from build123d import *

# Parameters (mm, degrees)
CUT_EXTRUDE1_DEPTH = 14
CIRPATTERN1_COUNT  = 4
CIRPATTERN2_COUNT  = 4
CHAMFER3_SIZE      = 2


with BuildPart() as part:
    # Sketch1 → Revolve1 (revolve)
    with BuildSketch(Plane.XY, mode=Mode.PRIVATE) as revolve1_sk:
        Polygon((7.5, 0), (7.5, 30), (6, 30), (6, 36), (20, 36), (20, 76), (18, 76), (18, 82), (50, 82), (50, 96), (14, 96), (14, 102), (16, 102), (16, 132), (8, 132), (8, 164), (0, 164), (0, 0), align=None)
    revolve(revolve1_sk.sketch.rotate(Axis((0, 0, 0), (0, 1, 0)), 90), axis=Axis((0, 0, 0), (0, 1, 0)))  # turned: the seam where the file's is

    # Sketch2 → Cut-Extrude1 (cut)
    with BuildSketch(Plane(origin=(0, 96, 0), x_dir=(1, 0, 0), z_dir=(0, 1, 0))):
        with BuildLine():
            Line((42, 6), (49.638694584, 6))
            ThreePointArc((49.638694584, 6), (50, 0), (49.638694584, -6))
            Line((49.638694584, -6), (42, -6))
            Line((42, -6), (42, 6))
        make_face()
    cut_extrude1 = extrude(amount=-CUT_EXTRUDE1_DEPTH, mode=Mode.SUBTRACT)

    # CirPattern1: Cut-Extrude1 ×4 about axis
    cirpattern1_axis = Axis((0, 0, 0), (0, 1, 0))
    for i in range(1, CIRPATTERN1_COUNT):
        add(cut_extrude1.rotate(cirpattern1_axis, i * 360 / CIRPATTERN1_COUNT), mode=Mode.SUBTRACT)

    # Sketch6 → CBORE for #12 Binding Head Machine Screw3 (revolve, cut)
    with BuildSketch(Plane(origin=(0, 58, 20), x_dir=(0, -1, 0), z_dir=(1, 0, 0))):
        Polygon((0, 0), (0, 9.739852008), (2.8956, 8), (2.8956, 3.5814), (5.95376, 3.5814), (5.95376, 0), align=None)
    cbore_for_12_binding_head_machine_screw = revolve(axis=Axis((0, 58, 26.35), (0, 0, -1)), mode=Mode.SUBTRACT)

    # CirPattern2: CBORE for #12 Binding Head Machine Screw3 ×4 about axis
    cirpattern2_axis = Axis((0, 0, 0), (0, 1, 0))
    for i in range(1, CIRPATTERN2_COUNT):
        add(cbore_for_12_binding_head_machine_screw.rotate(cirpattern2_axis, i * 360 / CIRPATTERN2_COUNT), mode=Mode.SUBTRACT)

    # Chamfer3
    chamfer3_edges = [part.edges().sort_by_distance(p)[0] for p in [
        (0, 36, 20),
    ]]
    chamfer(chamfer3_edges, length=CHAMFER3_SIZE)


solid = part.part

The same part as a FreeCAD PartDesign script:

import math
import FreeCAD as App
import Part
import Sketcher
from FreeCAD import Vector
Q = App.Units.Quantity


def edges_at(feature, points):
    """Names of the edges that pass closest to the given points."""
    edges = feature.Shape.Edges
    near = lambda p: min(range(len(edges)), key=lambda i: edges[i].distToShape(Part.Vertex(*p))[0])
    return sorted({f"Edge{near(p) + 1}" for p in points})

doc = App.newDocument("Part")
body = doc.addObject("PartDesign::Body", "Body")

# Sketch on XY plane
sketch1 = body.newObject("Sketcher::SketchObject", "Sketch")
sketch1.AttachmentSupport = (doc.getObject("XY_Plane"), [""])
sketch1.MapMode = "FlatFace"
sketch1.addGeometry(Part.LineSegment(Vector(7.5, 0, 0), Vector(7.5, 30, 0)), False)
sketch1.addGeometry(Part.LineSegment(Vector(7.5, 30, 0), Vector(6, 30, 0)), False)
sketch1.addGeometry(Part.LineSegment(Vector(6, 30, 0), Vector(6, 36, 0)), False)
sketch1.addGeometry(Part.LineSegment(Vector(6, 36, 0), Vector(20, 36, 0)), False)
sketch1.addGeometry(Part.LineSegment(Vector(20, 36, 0), Vector(20, 76, 0)), False)
sketch1.addGeometry(Part.LineSegment(Vector(20, 76, 0), Vector(18, 76, 0)), False)
sketch1.addGeometry(Part.LineSegment(Vector(18, 76, 0), Vector(18, 82, 0)), False)
sketch1.addGeometry(Part.LineSegment(Vector(18, 82, 0), Vector(50, 82, 0)), False)
sketch1.addGeometry(Part.LineSegment(Vector(50, 82, 0), Vector(50, 96, 0)), False)
sketch1.addGeometry(Part.LineSegment(Vector(50, 96, 0), Vector(14, 96, 0)), False)
sketch1.addGeometry(Part.LineSegment(Vector(14, 96, 0), Vector(14, 102, 0)), False)
sketch1.addGeometry(Part.LineSegment(Vector(14, 102, 0), Vector(16, 102, 0)), False)
sketch1.addGeometry(Part.LineSegment(Vector(16, 102, 0), Vector(16, 132, 0)), False)
sketch1.addGeometry(Part.LineSegment(Vector(16, 132, 0), Vector(8, 132, 0)), False)
sketch1.addGeometry(Part.LineSegment(Vector(8, 132, 0), Vector(8, 164, 0)), False)
sketch1.addGeometry(Part.LineSegment(Vector(8, 164, 0), Vector(0, 164, 0)), False)
sketch1.addGeometry(Part.LineSegment(Vector(0, 164, 0), Vector(0, 0, 0)), False)
sketch1.addGeometry(Part.LineSegment(Vector(0, 0, 0), Vector(7.5, 0, 0)), False)
sketch1.addConstraint(Sketcher.Constraint("Coincident", 0, 2, 1, 1))
sketch1.addConstraint(Sketcher.Constraint("Coincident", 1, 2, 2, 1))
sketch1.addConstraint(Sketcher.Constraint("Coincident", 2, 2, 3, 1))
sketch1.addConstraint(Sketcher.Constraint("Coincident", 3, 2, 4, 1))
sketch1.addConstraint(Sketcher.Constraint("Coincident", 4, 2, 5, 1))
sketch1.addConstraint(Sketcher.Constraint("Coincident", 5, 2, 6, 1))
sketch1.addConstraint(Sketcher.Constraint("Coincident", 6, 2, 7, 1))
sketch1.addConstraint(Sketcher.Constraint("Coincident", 7, 2, 8, 1))
sketch1.addConstraint(Sketcher.Constraint("Coincident", 8, 2, 9, 1))
sketch1.addConstraint(Sketcher.Constraint("Coincident", 9, 2, 10, 1))
sketch1.addConstraint(Sketcher.Constraint("Coincident", 10, 2, 11, 1))
sketch1.addConstraint(Sketcher.Constraint("Coincident", 11, 2, 12, 1))
sketch1.addConstraint(Sketcher.Constraint("Coincident", 12, 2, 13, 1))
sketch1.addConstraint(Sketcher.Constraint("Coincident", 13, 2, 14, 1))
sketch1.addConstraint(Sketcher.Constraint("Coincident", 14, 2, 15, 1))
sketch1.addConstraint(Sketcher.Constraint("Coincident", 15, 2, 16, 1))
sketch1.addConstraint(Sketcher.Constraint("Coincident", 16, 2, 17, 1))
sketch1.addConstraint(Sketcher.Constraint("Coincident", 17, 2, 0, 1))
sketch1.addConstraint(Sketcher.Constraint("Vertical", 0))
sketch1.addConstraint(Sketcher.Constraint("Horizontal", 1))
sketch1.addConstraint(Sketcher.Constraint("Vertical", 2))
sketch1.addConstraint(Sketcher.Constraint("Horizontal", 3))
sketch1.addConstraint(Sketcher.Constraint("Vertical", 4))
sketch1.addConstraint(Sketcher.Constraint("Horizontal", 5))
sketch1.addConstraint(Sketcher.Constraint("Vertical", 6))
sketch1.addConstraint(Sketcher.Constraint("Horizontal", 7))
sketch1.addConstraint(Sketcher.Constraint("Vertical", 8))
sketch1.addConstraint(Sketcher.Constraint("Horizontal", 9))
sketch1.addConstraint(Sketcher.Constraint("Vertical", 10))
sketch1.addConstraint(Sketcher.Constraint("Horizontal", 11))
sketch1.addConstraint(Sketcher.Constraint("Vertical", 12))
sketch1.addConstraint(Sketcher.Constraint("Horizontal", 13))
sketch1.addConstraint(Sketcher.Constraint("Vertical", 14))
sketch1.addConstraint(Sketcher.Constraint("Horizontal", 15))
sketch1.addConstraint(Sketcher.Constraint("Vertical", 16))
sketch1.addConstraint(Sketcher.Constraint("Horizontal", 17))
sketch1.addConstraint(Sketcher.Constraint("Coincident", 16, 2, -1, 1))
sketch1.addConstraint(Sketcher.Constraint("Equal", 5, 11))
sketch1.addConstraint(Sketcher.Constraint("Equal", 13, 15))
sketch1.addConstraint(Sketcher.Constraint("Equal", 2, 6))
sketch1.addConstraint(Sketcher.Constraint("Equal", 3, 8))
sketch1.addConstraint(Sketcher.Constraint("Equal", 6, 10))
sketch1.addConstraint(Sketcher.Constraint("Equal", 0, 12))
sketch1.addConstraint(Sketcher.Constraint("Equal", 7, 14))
sketch1.addConstraint(Sketcher.Constraint("DistanceX", 3, 1, 3, 2, Q("14 mm")))
sketch1.addConstraint(Sketcher.Constraint("DistanceX", 5, 2, 5, 1, Q("2 mm")))
sketch1.addConstraint(Sketcher.Constraint("DistanceX", 7, 1, 7, 2, Q("32 mm")))
sketch1.addConstraint(Sketcher.Constraint("DistanceX", 9, 2, 9, 1, Q("36 mm")))
sketch1.addConstraint(Sketcher.Constraint("DistanceX", 13, 2, 13, 1, Q("8 mm")))
sketch1.addConstraint(Sketcher.Constraint("DistanceY", 0, 1, 0, 2, Q("30 mm")))
sketch1.addConstraint(Sketcher.Constraint("DistanceY", 2, 1, 2, 2, Q("6 mm")))
sketch1.addConstraint(Sketcher.Constraint("DistanceY", 4, 1, 4, 2, Q("40 mm")))
sketch1.addConstraint(Sketcher.Constraint("DistanceX", 1, 2, 1, 1, Q("1.5 mm")))
revolution = body.newObject("PartDesign::Revolution", "Revolution")
revolution.Profile = sketch1
revolution.ReferenceAxis = (sketch1, ["V_Axis"])
revolution.Angle = 360

# Sketch on XZ plane
sketch2 = body.newObject("Sketcher::SketchObject", "Sketch001")
sketch2.AttachmentSupport = (doc.getObject("XZ_Plane"), [""])
sketch2.MapMode = "FlatFace"
sketch2.AttachmentOffset = App.Placement(Vector(0, 0, -96), App.Rotation())
sketch2.addGeometry(Part.LineSegment(Vector(50, -6, 0), Vector(42, -6, 0)), False)
sketch2.addGeometry(Part.LineSegment(Vector(42, -6, 0), Vector(42, 6, 0)), False)
sketch2.addGeometry(Part.LineSegment(Vector(42, 6, 0), Vector(50, 6, 0)), False)
sketch2.addGeometry(Part.ArcOfCircle(Part.Circle(Vector(0, 0, 0), Vector(0, 0, 1), 50), math.radians(-6.89), math.radians(6.89)), False)
sketch2.addConstraint(Sketcher.Constraint("Coincident", 0, 2, 1, 1))
sketch2.addConstraint(Sketcher.Constraint("Coincident", 1, 2, 2, 1))
sketch2.addConstraint(Sketcher.Constraint("Coincident", 2, 2, 3, 2))
sketch2.addConstraint(Sketcher.Constraint("Coincident", 3, 1, 0, 1))
sketch2.addConstraint(Sketcher.Constraint("Horizontal", 0))
sketch2.addConstraint(Sketcher.Constraint("Vertical", 1))
sketch2.addConstraint(Sketcher.Constraint("Horizontal", 2))
sketch2.addConstraint(Sketcher.Constraint("Coincident", 3, 3, -1, 1))
sketch2.addConstraint(Sketcher.Constraint("Vertical", 2, 2, 3, 1))
sketch2.addConstraint(Sketcher.Constraint("Radius", 3, Q("50 mm")))
sketch2.addConstraint(Sketcher.Constraint("DistanceY", 1, 1, 1, 2, Q("12 mm")))
sketch2.addConstraint(Sketcher.Constraint("DistanceX", -1, 1, 0, 2, Q("42 mm")))
pocket1 = body.newObject("PartDesign::Pocket", "Pocket")
pocket1.Profile = sketch2
pocket1.Length = 14
pocket1.Reversed = True
doc.recompute()

polarpattern = body.newObject("PartDesign::PolarPattern", "PolarPattern")
polarpattern.Originals = [pocket1]
polarpattern.Axis = (doc.getObject("Y_Axis"), [""])
polarpattern.Angle = 360
polarpattern.Occurrences = 4
body.Tip = polarpattern

# Sketch on YZ plane
sketch3 = body.newObject("Sketcher::SketchObject", "Sketch002")
sketch3.AttachmentSupport = (doc.getObject("YZ_Plane"), [""])
sketch3.MapMode = "FlatFace"
sketch3.addGeometry(Part.LineSegment(Vector(58, 10.3, 0), Vector(58, 20, 0)), False)
sketch3.addGeometry(Part.LineSegment(Vector(58, 20, 0), Vector(52, 20, 0)), False)
sketch3.addGeometry(Part.LineSegment(Vector(52, 20, 0), Vector(52, 16.4, 0)), False)
sketch3.addGeometry(Part.LineSegment(Vector(52, 16.4, 0), Vector(55.1, 16.4, 0)), False)
sketch3.addGeometry(Part.LineSegment(Vector(55.1, 16.4, 0), Vector(55.1, 12, 0)), False)
sketch3.addGeometry(Part.LineSegment(Vector(55.1, 12, 0), Vector(58, 10.3, 0)), False)
sketch3.addGeometry(Part.LineSegment(Vector(58, 20, 0), Vector(58, 10.3, 0)), True)  # axis
sketch3.addConstraint(Sketcher.Constraint("Coincident", 0, 2, 1, 1))
sketch3.addConstraint(Sketcher.Constraint("Coincident", 1, 2, 2, 1))
sketch3.addConstraint(Sketcher.Constraint("Coincident", 2, 2, 3, 1))
sketch3.addConstraint(Sketcher.Constraint("Coincident", 3, 2, 4, 1))
sketch3.addConstraint(Sketcher.Constraint("Coincident", 4, 2, 5, 1))
sketch3.addConstraint(Sketcher.Constraint("Coincident", 5, 2, 0, 1))
sketch3.addConstraint(Sketcher.Constraint("Vertical", 0))
sketch3.addConstraint(Sketcher.Constraint("Horizontal", 1))
sketch3.addConstraint(Sketcher.Constraint("Vertical", 2))
sketch3.addConstraint(Sketcher.Constraint("Horizontal", 3))
sketch3.addConstraint(Sketcher.Constraint("Vertical", 4))
sketch3.addConstraint(Sketcher.Constraint("Vertical", 6))
sketch3.addConstraint(Sketcher.Constraint("Coincident", 6, 1, 0, 2))
sketch3.addConstraint(Sketcher.Constraint("Equal", 0, 6))
sketch3.addConstraint(Sketcher.Constraint("Angle", 5, Q("-31 deg")))
sketch3.addConstraint(Sketcher.Constraint("DistanceX", -1, 1, 0, 2, Q("58 mm")))
sketch3.addConstraint(Sketcher.Constraint("DistanceY", -1, 1, 0, 2, Q("20 mm")))
sketch3.addConstraint(Sketcher.Constraint("DistanceY", -1, 1, 4, 2, Q("12 mm")))
sketch3.addConstraint(Sketcher.Constraint("DistanceY", 2, 2, 2, 1, Q("3.5814 mm")))
sketch3.addConstraint(Sketcher.Constraint("DistanceX", 1, 2, 1, 1, Q("5.95376 mm")))
sketch3.addConstraint(Sketcher.Constraint("DistanceX", 3, 1, 3, 2, Q("3.05816 mm")))
groove = body.newObject("PartDesign::Groove", "Groove")
groove.Profile = sketch3
groove.ReferenceAxis = (sketch3, ["Axis0"])
groove.Angle = 360
doc.recompute()

polarpattern2 = body.newObject("PartDesign::PolarPattern", "PolarPattern001")
polarpattern2.Originals = [groove]
polarpattern2.Axis = (doc.getObject("Y_Axis"), [""])
polarpattern2.Angle = 360
polarpattern2.Occurrences = 4
body.Tip = polarpattern2
doc.recompute()

chamfer = body.newObject("PartDesign::Chamfer", "Chamfer")
chamfer.Base = (polarpattern2, edges_at(polarpattern2, [(0, 36, 20)]))
chamfer.Size = 2

doc.recompute()
